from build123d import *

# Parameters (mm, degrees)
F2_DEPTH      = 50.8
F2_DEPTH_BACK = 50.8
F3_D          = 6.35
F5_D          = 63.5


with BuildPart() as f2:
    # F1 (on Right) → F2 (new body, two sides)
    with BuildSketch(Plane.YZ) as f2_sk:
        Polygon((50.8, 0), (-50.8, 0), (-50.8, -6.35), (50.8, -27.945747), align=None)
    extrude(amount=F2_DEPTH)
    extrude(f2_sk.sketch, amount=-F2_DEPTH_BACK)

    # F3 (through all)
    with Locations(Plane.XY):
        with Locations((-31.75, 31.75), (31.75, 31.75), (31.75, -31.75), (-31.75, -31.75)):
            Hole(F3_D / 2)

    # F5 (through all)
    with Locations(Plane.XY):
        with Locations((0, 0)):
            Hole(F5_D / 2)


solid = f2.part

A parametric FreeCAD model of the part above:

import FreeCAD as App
import Part
import Sketcher

V = App.Vector
Q = App.Units.Quantity


def add_polygon(sketch, points):
    """Adds a closed chain of lines whose ends are joined by coincident constraints."""
    first, n = sketch.GeometryCount, len(points)
    for a, b in zip(points, points[1:] + points[:1]):
        sketch.addGeometry(Part.LineSegment(App.Vector(*a, 0), App.Vector(*b, 0)), False)
    for i in range(n):
        sketch.addConstraint(Sketcher.Constraint("Coincident", first + i, 2, first + (i + 1) % n, 1))

doc = App.newDocument("Part")
body = doc.addObject("PartDesign::Body", "Body")

sketch1 = body.newObject("Sketcher::SketchObject", "Sketch")
sketch1.AttachmentSupport = (doc.getObject("YZ_Plane"), [""])
sketch1.MapMode = "FlatFace"
add_polygon(sketch1, [(50.8, 0), (-50.8, 0), (-50.8, -6.35), (50.8, -27.945747)])
sketch1.addConstraint([
    Sketcher.Constraint("Horizontal", 0),
    Sketcher.Constraint("Vertical", 1),
    Sketcher.Constraint("Vertical", 3),
    Sketcher.Constraint("Symmetric", 0, 2, 3, 2, -1, 1),
    Sketcher.Constraint("DistanceX", 0, 2, 0, 1, Q("4 in")),
    Sketcher.Constraint("Angle", 2, Q("-12 deg")),
    Sketcher.Constraint("DistanceY", 1, 2, 1, 1, Q("0.25 in")),
])
pad1 = body.newObject("PartDesign::Pad", "Pad")
pad1.Profile = sketch1
pad1.Type = "TwoLengths"
pad1.Length = Q("2 in")
pad1.Length2 = Q("2 in")

sketch2 = body.newObject("Sketcher::SketchObject", "Sketch001")
sketch2.AttachmentSupport = (doc.getObject("XY_Plane"), [""])
sketch2.MapMode = "FlatFace"
sketch2.addGeometry([
    Part.Circle(V(-31.75, 31.75, 0), V(0, 0, 1), 3.175),
    Part.Circle(V(31.75, 31.75, 0), V(0, 0, 1), 3.175),
    Part.Circle(V(31.75, -31.75, 0), V(0, 0, 1), 3.175),
    Part.Circle(V(-31.75, -31.75, 0), V(0, 0, 1), 3.175),
], False)
sketch2.addConstraint([
    Sketcher.Constraint("Equal", 0, 1),
    Sketcher.Constraint("Equal", 1, 2),
    Sketcher.Constraint("Equal", 2, 3),
    Sketcher.Constraint("Symmetric", 0, 3, 2, 3, -1, 1),
    Sketcher.Constraint("Symmetric", 1, 3, 3, 3, -1, 1),
    Sketcher.Constraint("Symmetric", 0, 3, 1, 3, -2),
    Sketcher.Constraint("Diameter", 0, Q("0.25 in")),
    Sketcher.Constraint("DistanceX", 0, 3, 1, 3, Q("2.5 in")),
    Sketcher.Constraint("DistanceY", 2, 3, 1, 3, Q("2.5 in")),
])
doc.recompute()
hole = body.newObject("PartDesign::Hole", "Hole")
hole.Profile = sketch2
hole.ThreadType = "None"
hole.Diameter = Q("0.25 in")
hole.DepthType = "ThroughAll"

sketch3 = body.newObject("Sketcher::SketchObject", "Sketch002")
sketch3.AttachmentSupport = (doc.getObject("XY_Plane"), [""])
sketch3.MapMode = "FlatFace"
sketch3.addGeometry(Part.Circle(V(0, 0, 0), V(0, 0, 1), 31.75), False)
sketch3.addConstraint([
    Sketcher.Constraint("Coincident", 0, 3, -1, 1),
    Sketcher.Constraint("Diameter", 0, Q("2.5 in")),
])
doc.recompute()
hole2 = body.newObject("PartDesign::Hole", "Hole001")
hole2.Profile = sketch3
hole2.ThreadType = "None"
hole2.Diameter = Q("2.5 in")
hole2.DepthType = "ThroughAll"

doc.recompute()
